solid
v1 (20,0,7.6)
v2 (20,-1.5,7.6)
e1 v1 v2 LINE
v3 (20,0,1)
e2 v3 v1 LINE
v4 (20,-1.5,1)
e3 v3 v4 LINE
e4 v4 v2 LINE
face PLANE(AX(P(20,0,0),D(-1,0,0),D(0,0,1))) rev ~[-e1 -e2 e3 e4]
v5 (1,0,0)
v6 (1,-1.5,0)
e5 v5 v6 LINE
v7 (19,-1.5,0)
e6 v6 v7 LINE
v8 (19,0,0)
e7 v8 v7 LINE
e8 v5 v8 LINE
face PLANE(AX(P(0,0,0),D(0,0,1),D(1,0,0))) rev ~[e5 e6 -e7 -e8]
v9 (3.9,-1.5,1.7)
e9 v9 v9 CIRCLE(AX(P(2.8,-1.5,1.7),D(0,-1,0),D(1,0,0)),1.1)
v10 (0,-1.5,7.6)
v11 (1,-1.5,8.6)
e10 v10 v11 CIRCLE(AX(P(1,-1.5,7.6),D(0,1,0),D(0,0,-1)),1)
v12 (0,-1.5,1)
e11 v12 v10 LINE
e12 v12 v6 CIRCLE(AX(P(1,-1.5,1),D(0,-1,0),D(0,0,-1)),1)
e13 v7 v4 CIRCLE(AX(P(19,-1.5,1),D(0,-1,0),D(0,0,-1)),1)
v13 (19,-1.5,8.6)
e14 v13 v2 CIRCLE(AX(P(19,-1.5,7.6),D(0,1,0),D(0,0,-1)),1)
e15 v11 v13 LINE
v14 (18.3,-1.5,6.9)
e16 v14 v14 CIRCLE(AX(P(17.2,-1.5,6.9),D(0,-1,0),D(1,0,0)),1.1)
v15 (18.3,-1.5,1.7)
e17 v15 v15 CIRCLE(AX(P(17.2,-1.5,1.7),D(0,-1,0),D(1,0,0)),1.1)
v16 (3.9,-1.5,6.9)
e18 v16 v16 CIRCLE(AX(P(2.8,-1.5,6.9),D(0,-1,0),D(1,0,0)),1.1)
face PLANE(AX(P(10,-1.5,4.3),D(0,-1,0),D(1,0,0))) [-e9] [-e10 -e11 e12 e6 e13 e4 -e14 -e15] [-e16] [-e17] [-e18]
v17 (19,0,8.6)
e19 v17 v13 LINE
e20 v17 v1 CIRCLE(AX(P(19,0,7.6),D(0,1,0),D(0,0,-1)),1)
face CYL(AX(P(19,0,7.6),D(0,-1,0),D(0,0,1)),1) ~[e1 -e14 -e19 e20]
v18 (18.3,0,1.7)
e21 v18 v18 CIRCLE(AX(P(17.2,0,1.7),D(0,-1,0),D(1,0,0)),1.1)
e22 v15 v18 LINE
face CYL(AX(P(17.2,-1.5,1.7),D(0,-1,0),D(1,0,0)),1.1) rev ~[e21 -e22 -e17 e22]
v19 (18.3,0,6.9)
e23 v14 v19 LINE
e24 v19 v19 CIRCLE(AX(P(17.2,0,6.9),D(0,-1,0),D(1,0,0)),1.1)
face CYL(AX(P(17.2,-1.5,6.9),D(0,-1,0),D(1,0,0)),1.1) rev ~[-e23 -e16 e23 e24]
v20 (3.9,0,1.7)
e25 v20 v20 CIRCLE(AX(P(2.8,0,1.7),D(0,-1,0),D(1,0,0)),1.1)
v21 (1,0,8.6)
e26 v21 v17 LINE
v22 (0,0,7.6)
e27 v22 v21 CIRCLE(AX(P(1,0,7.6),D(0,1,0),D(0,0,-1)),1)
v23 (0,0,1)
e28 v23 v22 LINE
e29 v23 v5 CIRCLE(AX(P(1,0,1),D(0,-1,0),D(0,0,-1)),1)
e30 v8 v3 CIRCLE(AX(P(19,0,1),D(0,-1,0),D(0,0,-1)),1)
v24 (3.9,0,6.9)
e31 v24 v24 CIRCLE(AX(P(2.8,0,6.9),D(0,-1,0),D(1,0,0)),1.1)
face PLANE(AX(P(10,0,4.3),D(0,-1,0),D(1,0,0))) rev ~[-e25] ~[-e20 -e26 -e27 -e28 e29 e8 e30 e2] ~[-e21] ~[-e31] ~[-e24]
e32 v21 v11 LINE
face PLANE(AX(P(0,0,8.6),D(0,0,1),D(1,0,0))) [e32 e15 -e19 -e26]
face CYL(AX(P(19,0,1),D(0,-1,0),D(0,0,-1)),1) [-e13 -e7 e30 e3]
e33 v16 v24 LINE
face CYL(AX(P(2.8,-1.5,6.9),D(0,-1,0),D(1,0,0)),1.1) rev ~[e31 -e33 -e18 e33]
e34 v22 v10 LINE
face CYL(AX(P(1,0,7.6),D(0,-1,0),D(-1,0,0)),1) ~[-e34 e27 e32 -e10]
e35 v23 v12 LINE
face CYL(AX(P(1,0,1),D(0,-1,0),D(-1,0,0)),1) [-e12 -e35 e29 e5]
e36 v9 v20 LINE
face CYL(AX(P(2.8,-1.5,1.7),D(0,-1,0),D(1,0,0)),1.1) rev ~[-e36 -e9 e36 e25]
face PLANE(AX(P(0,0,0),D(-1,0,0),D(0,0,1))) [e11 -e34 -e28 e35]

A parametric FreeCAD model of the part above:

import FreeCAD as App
import Part
import Sketcher
from FreeCAD import Vector


def edges_at(feature, points):
    """Names of the edges that pass closest to the given points."""
    edges = feature.Shape.Edges
    near = lambda p: min(range(len(edges)), key=lambda i: edges[i].distToShape(Part.Vertex(*p))[0])
    return sorted({f"Edge{near(p) + 1}" for p in points})


def add_polygon(sketch, points):
    """Adds a closed chain of lines whose ends are joined by coincident constraints."""
    first, n = sketch.GeometryCount, len(points)
    for a, b in zip(points, points[1:] + points[:1]):
        sketch.addGeometry(Part.LineSegment(App.Vector(*a, 0), App.Vector(*b, 0)), False)
    for i in range(n):
        sketch.addConstraint(Sketcher.Constraint("Coincident", first + i, 2, first + (i + 1) % n, 1))

doc = App.newDocument("Part")
body = doc.addObject("PartDesign::Body", "Body")

# Sketch on XZ plane
sketch1 = body.newObject("Sketcher::SketchObject", "Sketch")
sketch1.AttachmentSupport = (doc.getObject("XZ_Plane"), [""])
sketch1.MapMode = "FlatFace"
add_polygon(sketch1, [(0, 9), (0, 0), (20, 0), (20, 9)])  # lines 0-3
sketch1.addConstraint([
    Sketcher.Constraint("Vertical", 0),
    Sketcher.Constraint("Horizontal", 1),
    Sketcher.Constraint("Vertical", 2),
    Sketcher.Constraint("Horizontal", 3),
    Sketcher.Constraint("Coincident", 0, 2, -1, 1),
    Sketcher.Constraint("DistanceX", 1, 1, 1, 2, 20.0),
    Sketcher.Constraint("DistanceY", 0, 2, 0, 1, 8.6),
])
pad1 = body.newObject("PartDesign::Pad", "Pad")
pad1.Profile = sketch1
pad1.Length = 1.5

# Sketch on XZ plane
sketch2 = body.newObject("Sketcher::SketchObject", "Sketch001")
sketch2.AttachmentSupport = (doc.getObject("XZ_Plane"), [""])
sketch2.MapMode = "FlatFace"
sketch2.AttachmentOffset = App.Placement(Vector(0, 0, 1.5), App.Rotation())
sketch2.addGeometry([
    Part.Circle(Vector(2.8, 6.9, 0), Vector(0, 0, 1), 1.1),
    Part.Circle(Vector(17.2, 6.9, 0), Vector(0, 0, 1), 1.1),
    Part.Circle(Vector(2.8, 1.7, 0), Vector(0, 0, 1), 1.1),
    Part.Circle(Vector(17.2, 1.7, 0), Vector(0, 0, 1), 1.1),
], False)
sketch2.addConstraint([
    Sketcher.Constraint("Equal", 0, 1),
    Sketcher.Constraint("Equal", 1, 2),
    Sketcher.Constraint("Equal", 2, 3),
    Sketcher.Constraint("Horizontal", 0, 3, 1, 3),
    Sketcher.Constraint("Horizontal", 2, 3, 3, 3),
    Sketcher.Constraint("Vertical", 0, 3, 2, 3),
    Sketcher.Constraint("Vertical", 1, 3, 3, 3),
    Sketcher.Constraint("Diameter", 0, 2.2),
    Sketcher.Constraint("DistanceX", -1, 1, 0, 3, 2.8),
    Sketcher.Constraint("DistanceY", -1, 1, 0, 3, 6.9),
    Sketcher.Constraint("DistanceX", -1, 1, 1, 3, 17.2),
    Sketcher.Constraint("DistanceY", -1, 1, 2, 3, 1.7),
])
pocket1 = body.newObject("PartDesign::Pocket", "Pocket")
pocket1.Profile = sketch2
pocket1.Type = "ThroughAll"
doc.recompute()

fillet = body.newObject("PartDesign::Fillet", "Fillet")
fillet.Base = (pocket1, edges_at(pocket1, [
    (20, -0.75, 8.6),
    (20, -0.75, 0),
    (0, -0.75, 8.6),
    (0, -0.75, 0),
]))
fillet.Radius = 1

doc.recompute()
